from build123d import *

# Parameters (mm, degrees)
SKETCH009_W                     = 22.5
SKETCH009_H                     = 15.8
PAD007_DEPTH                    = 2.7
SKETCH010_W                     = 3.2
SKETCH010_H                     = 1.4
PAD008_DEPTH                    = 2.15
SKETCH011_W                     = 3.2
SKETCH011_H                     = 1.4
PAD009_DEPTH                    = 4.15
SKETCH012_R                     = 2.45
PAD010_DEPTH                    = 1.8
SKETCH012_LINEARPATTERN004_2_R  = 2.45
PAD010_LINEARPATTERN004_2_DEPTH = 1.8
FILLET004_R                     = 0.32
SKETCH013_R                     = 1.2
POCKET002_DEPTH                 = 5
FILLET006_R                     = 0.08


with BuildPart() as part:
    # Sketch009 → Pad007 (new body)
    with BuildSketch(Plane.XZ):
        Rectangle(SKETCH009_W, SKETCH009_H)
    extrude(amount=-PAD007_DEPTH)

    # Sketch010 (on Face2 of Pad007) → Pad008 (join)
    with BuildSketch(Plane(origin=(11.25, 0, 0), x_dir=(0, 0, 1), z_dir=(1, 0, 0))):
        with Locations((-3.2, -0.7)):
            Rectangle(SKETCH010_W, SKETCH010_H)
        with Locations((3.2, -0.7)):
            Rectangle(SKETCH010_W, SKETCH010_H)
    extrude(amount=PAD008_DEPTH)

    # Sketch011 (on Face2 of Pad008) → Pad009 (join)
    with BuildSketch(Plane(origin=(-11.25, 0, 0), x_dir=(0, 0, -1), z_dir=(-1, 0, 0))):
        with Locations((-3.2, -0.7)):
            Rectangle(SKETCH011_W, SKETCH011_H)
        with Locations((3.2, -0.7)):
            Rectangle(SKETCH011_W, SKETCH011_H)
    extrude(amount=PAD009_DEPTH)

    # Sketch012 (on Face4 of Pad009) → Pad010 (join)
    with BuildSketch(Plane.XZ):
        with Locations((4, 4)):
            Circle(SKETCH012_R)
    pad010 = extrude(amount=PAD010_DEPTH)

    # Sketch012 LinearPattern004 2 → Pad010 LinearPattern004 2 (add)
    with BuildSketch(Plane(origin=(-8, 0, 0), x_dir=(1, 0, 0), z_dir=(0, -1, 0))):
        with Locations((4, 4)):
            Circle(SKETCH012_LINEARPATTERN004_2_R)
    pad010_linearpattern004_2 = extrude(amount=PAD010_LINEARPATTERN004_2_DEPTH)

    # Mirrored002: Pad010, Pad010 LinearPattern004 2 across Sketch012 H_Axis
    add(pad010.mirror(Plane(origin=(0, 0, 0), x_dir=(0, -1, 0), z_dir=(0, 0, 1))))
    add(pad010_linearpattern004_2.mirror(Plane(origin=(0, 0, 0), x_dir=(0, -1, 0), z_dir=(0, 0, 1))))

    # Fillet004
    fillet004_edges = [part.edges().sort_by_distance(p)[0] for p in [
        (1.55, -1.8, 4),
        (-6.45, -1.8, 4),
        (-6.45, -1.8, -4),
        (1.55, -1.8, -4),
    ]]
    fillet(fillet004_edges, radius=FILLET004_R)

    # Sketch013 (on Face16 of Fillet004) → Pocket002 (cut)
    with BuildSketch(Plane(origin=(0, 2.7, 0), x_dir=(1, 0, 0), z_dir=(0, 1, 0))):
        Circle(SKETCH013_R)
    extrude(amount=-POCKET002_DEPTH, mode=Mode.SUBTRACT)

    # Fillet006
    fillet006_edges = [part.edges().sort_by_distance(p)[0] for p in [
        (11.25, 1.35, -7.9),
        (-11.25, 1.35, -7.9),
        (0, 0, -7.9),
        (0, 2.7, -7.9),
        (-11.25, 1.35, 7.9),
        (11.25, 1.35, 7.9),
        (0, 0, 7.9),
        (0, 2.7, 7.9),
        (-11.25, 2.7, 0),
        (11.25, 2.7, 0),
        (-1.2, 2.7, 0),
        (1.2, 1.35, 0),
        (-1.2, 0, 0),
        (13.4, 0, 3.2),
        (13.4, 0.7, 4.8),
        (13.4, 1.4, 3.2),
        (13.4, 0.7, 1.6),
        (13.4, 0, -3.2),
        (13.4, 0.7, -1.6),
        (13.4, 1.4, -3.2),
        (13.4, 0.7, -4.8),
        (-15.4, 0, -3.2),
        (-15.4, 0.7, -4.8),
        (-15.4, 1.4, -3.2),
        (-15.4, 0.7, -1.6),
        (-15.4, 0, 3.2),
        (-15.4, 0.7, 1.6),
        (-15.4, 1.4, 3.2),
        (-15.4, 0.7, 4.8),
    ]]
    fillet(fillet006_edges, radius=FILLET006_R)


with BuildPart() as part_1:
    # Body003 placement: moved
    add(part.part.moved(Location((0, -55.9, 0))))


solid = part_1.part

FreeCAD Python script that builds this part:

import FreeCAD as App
import Part
import Sketcher

V = App.Vector


def edges_at(feature, points):
    """Names of the edges that pass closest to the given points."""
    edges = feature.Shape.Edges
    near = lambda p: min(range(len(edges)), key=lambda i: edges[i].distToShape(Part.Vertex(*p))[0])
    return sorted({f"Edge{near(p) + 1}" for p in points})


def add_polygon(sketch, points):
    """Adds a closed chain of lines whose ends are joined by coincident constraints."""
    first, n = sketch.GeometryCount, len(points)
    for a, b in zip(points, points[1:] + points[:1]):
        sketch.addGeometry(Part.LineSegment(App.Vector(*a, 0), App.Vector(*b, 0)), False)
    for i in range(n):
        sketch.addConstraint(Sketcher.Constraint("Coincident", first + i, 2, first + (i + 1) % n, 1))

doc = App.newDocument("Part")
body = doc.addObject("PartDesign::Body", "Body")

# Sketch on XZ plane
sketch1 = body.newObject("Sketcher::SketchObject", "Sketch")
sketch1.AttachmentSupport = (doc.getObject("XZ_Plane"), [""])
sketch1.MapMode = "FlatFace"
add_polygon(sketch1, [(-11, 8), (-11, -8), (11, -8), (11, 8)])  # lines 0-3
sketch1.addConstraint(Sketcher.Constraint("Vertical", 0))
sketch1.addConstraint(Sketcher.Constraint("Horizontal", 1))
sketch1.addConstraint(Sketcher.Constraint("Vertical", 2))
sketch1.addConstraint(Sketcher.Constraint("Horizontal", 3))
sketch1.addConstraint(Sketcher.Constraint("Symmetric", 0, 2, 2, 2, -1, 1))
sketch1.addConstraint(Sketcher.Constraint("DistanceX", 1, 1, 1, 2, 22.5))
sketch1.addConstraint(Sketcher.Constraint("DistanceY", 0, 2, 0, 1, 15.8))
pad1 = body.newObject("PartDesign::Pad", "Pad")
pad1.Profile = sketch1
pad1.Length = 2.7
pad1.Reversed = True

# Sketch on YZ plane
sketch2 = body.newObject("Sketcher::SketchObject", "Sketch001")
sketch2.AttachmentSupport = (doc.getObject("YZ_Plane"), [""])
sketch2.MapMode = "FlatFace"
sketch2.AttachmentOffset = App.Placement(V(0, 0, 11.25), App.Rotation())
add_polygon(sketch2, [(0, -4.8), (1.4, -4.8), (1.4, -1.6), (0, -1.6)])  # lines 0-3
add_polygon(sketch2, [(0, 1.6), (1.4, 1.6), (1.4, 4.8), (0, 4.8)])  # lines 4-7
sketch2.addConstraint(Sketcher.Constraint("Horizontal", 0))
sketch2.addConstraint(Sketcher.Constraint("Vertical", 1))
sketch2.addConstraint(Sketcher.Constraint("Horizontal", 2))
sketch2.addConstraint(Sketcher.Constraint("Vertical", 3))
sketch2.addConstraint(Sketcher.Constraint("Horizontal", 4))
sketch2.addConstraint(Sketcher.Constraint("Vertical", 5))
sketch2.addConstraint(Sketcher.Constraint("Horizontal", 6))
sketch2.addConstraint(Sketcher.Constraint("Vertical", 7))
sketch2.addConstraint(Sketcher.Constraint("Symmetric", 3, 2, 6, 2, -1, 1))
sketch2.addConstraint(Sketcher.Constraint("Symmetric", 1, 2, 4, 2, -1))
sketch2.addConstraint(Sketcher.Constraint("PointOnObject", 2, 2, -2))
sketch2.addConstraint(Sketcher.Constraint("DistanceX", 0, 1, 0, 2, 1.4))
sketch2.addConstraint(Sketcher.Constraint("DistanceY", 1, 1, 1, 2, 3.2))
sketch2.addConstraint(Sketcher.Constraint("DistanceY", 0, 2, -1, 1, 4.8))
pad2 = body.newObject("PartDesign::Pad", "Pad001")
pad2.Profile = sketch2
pad2.Length = 2.15

# Sketch on YZ plane
sketch3 = body.newObject("Sketcher::SketchObject", "Sketch002")
sketch3.AttachmentSupport = (doc.getObject("YZ_Plane"), [""])
sketch3.MapMode = "FlatFace"
sketch3.AttachmentOffset = App.Placement(V(0, 0, -11.25), App.Rotation())
add_polygon(sketch3, [(0, 4.8), (1.4, 4.8), (1.4, 1.6), (0, 1.6)])  # lines 0-3
add_polygon(sketch3, [(0, -1.6), (1.4, -1.6), (1.4, -4.8), (0, -4.8)])  # lines 4-7
sketch3.addConstraint(Sketcher.Constraint("Horizontal", 0))
sketch3.addConstraint(Sketcher.Constraint("Vertical", 1))
sketch3.addConstraint(Sketcher.Constraint("Horizontal", 2))
sketch3.addConstraint(Sketcher.Constraint("Vertical", 3))
sketch3.addConstraint(Sketcher.Constraint("Horizontal", 4))
sketch3.addConstraint(Sketcher.Constraint("Vertical", 5))
sketch3.addConstraint(Sketcher.Constraint("Horizontal", 6))
sketch3.addConstraint(Sketcher.Constraint("Vertical", 7))
sketch3.addConstraint(Sketcher.Constraint("Symmetric", 3, 2, 6, 2, -1, 1))
sketch3.addConstraint(Sketcher.Constraint("Symmetric", 1, 2, 4, 2, -1))
sketch3.addConstraint(Sketcher.Constraint("PointOnObject", 2, 2, -2))
sketch3.addConstraint(Sketcher.Constraint("DistanceX", 0, 1, 0, 2, 1.4))
sketch3.addConstraint(Sketcher.Constraint("DistanceY", 1, 2, 1, 1, 3.2))
sketch3.addConstraint(Sketcher.Constraint("DistanceY", -1, 1, 0, 2, 4.8))
pad3 = body.newObject("PartDesign::Pad", "Pad002")
pad3.Profile = sketch3
pad3.Length = 4.15
pad3.Reversed = True

# Sketch on XZ plane
sketch4 = body.newObject("Sketcher::SketchObject", "Sketch003")
sketch4.AttachmentSupport = (doc.getObject("XZ_Plane"), [""])
sketch4.MapMode = "FlatFace"
sketch4.addGeometry(Part.Circle(V(4, 4, 0), V(0, 0, 1), 2.5), False)
sketch4.addConstraint(Sketcher.Constraint("Diameter", 0, 4.9))
sketch4.addConstraint(Sketcher.Constraint("DistanceX", -1, 1, 0, 3, 4.0))
sketch4.addConstraint(Sketcher.Constraint("DistanceY", -1, 1, 0, 3, 4.0))
pad4 = body.newObject("PartDesign::Pad", "Pad003")
pad4.Profile = sketch4
pad4.Length = 1.8

# Sketch on XZ plane
sketch5 = body.newObject("Sketcher::SketchObject", "Sketch004")
sketch5.AttachmentSupport = (doc.getObject("XZ_Plane"), [""])
sketch5.MapMode = "FlatFace"
sketch5.addGeometry(Part.Circle(V(-4, 4, 0), V(0, 0, 1), 2.5), False)
sketch5.addConstraint(Sketcher.Constraint("Diameter", 0, 4.9))
sketch5.addConstraint(Sketcher.Constraint("DistanceX", 0, 3, -1, 1, 4.0))
sketch5.addConstraint(Sketcher.Constraint("DistanceY", -1, 1, 0, 3, 4.0))
pad5 = body.newObject("PartDesign::Pad", "Pad004")
pad5.Profile = sketch5
pad5.Length = 1.8
doc.recompute()

mirrored = body.newObject("PartDesign::Mirrored", "Mirrored")
mirrored.Originals = [pad4, pad5]
mirrored.MirrorPlane = (doc.getObject("XY_Plane"), [""])
body.Tip = mirrored
doc.recompute()

fillet = body.newObject("PartDesign::Fillet", "Fillet")
fillet.Base = (mirrored, edges_at(mirrored, [
    (1.55, -1.8, 4),
    (-6.45, -1.8, 4),
    (-6.45, -1.8, -4),
    (1.55, -1.8, -4),
]))
fillet.Radius = 0.32

# Sketch on XZ plane
sketch6 = body.newObject("Sketcher::SketchObject", "Sketch005")
sketch6.AttachmentSupport = (doc.getObject("XZ_Plane"), [""])
sketch6.MapMode = "FlatFace"
sketch6.AttachmentOffset = App.Placement(V(0, 0, -2.7), App.Rotation())
sketch6.addGeometry(Part.Circle(V(0, 0, 0), V(0, 0, 1), 1.2), False)
sketch6.addConstraint(Sketcher.Constraint("Coincident", 0, 3, -1, 1))
sketch6.addConstraint(Sketcher.Constraint("Diameter", 0, 2.4))
pocket1 = body.newObject("PartDesign::Pocket", "Pocket")
pocket1.Profile = sketch6
pocket1.Length = 5
pocket1.Reversed = True
doc.recompute()

fillet2 = body.newObject("PartDesign::Fillet", "Fillet001")
fillet2.Base = (pocket1, edges_at(pocket1, [
    (11.25, 1.35, -7.9),
    (-11.25, 1.35, -7.9),
    (0, 0, -7.9),
    (0, 2.7, -7.9),
    (-11.25, 1.35, 7.9),
    (11.25, 1.35, 7.9),
    (0, 0, 7.9),
    (0, 2.7, 7.9),
    (-11.25, 2.7, 0),
    (11.25, 2.7, 0),
    (-1.2, 2.7, 0),
    (1.2, 1.35, 0),
    (-1.2, 0, 0),
    (13.4, 0, 3.2),
    (13.4, 0.7, 4.8),
    (13.4, 1.4, 3.2),
    (13.4, 0.7, 1.6),
    (13.4, 0, -3.2),
    (13.4, 0.7, -1.6),
    (13.4, 1.4, -3.2),
    (13.4, 0.7, -4.8),
    (-15.4, 0, -3.2),
    (-15.4, 0.7, -4.8),
    (-15.4, 1.4, -3.2),
    (-15.4, 0.7, -1.6),
    (-15.4, 0, 3.2),
    (-15.4, 0.7, 1.6),
    (-15.4, 1.4, 3.2),
    (-15.4, 0.7, 4.8),
]))
fillet2.Radius = 0.08
body2 = doc.addObject("PartDesign::Body", "Body001")
doc.recompute()

body.Placement = App.Placement(V(0, -55.9, 0), App.Rotation(V(0, 0, 1), 0))
boolean = body2.newObject("PartDesign::Boolean", "Boolean")
boolean.Type = "Fuse"
boolean.addObjects([body])

doc.recompute()
